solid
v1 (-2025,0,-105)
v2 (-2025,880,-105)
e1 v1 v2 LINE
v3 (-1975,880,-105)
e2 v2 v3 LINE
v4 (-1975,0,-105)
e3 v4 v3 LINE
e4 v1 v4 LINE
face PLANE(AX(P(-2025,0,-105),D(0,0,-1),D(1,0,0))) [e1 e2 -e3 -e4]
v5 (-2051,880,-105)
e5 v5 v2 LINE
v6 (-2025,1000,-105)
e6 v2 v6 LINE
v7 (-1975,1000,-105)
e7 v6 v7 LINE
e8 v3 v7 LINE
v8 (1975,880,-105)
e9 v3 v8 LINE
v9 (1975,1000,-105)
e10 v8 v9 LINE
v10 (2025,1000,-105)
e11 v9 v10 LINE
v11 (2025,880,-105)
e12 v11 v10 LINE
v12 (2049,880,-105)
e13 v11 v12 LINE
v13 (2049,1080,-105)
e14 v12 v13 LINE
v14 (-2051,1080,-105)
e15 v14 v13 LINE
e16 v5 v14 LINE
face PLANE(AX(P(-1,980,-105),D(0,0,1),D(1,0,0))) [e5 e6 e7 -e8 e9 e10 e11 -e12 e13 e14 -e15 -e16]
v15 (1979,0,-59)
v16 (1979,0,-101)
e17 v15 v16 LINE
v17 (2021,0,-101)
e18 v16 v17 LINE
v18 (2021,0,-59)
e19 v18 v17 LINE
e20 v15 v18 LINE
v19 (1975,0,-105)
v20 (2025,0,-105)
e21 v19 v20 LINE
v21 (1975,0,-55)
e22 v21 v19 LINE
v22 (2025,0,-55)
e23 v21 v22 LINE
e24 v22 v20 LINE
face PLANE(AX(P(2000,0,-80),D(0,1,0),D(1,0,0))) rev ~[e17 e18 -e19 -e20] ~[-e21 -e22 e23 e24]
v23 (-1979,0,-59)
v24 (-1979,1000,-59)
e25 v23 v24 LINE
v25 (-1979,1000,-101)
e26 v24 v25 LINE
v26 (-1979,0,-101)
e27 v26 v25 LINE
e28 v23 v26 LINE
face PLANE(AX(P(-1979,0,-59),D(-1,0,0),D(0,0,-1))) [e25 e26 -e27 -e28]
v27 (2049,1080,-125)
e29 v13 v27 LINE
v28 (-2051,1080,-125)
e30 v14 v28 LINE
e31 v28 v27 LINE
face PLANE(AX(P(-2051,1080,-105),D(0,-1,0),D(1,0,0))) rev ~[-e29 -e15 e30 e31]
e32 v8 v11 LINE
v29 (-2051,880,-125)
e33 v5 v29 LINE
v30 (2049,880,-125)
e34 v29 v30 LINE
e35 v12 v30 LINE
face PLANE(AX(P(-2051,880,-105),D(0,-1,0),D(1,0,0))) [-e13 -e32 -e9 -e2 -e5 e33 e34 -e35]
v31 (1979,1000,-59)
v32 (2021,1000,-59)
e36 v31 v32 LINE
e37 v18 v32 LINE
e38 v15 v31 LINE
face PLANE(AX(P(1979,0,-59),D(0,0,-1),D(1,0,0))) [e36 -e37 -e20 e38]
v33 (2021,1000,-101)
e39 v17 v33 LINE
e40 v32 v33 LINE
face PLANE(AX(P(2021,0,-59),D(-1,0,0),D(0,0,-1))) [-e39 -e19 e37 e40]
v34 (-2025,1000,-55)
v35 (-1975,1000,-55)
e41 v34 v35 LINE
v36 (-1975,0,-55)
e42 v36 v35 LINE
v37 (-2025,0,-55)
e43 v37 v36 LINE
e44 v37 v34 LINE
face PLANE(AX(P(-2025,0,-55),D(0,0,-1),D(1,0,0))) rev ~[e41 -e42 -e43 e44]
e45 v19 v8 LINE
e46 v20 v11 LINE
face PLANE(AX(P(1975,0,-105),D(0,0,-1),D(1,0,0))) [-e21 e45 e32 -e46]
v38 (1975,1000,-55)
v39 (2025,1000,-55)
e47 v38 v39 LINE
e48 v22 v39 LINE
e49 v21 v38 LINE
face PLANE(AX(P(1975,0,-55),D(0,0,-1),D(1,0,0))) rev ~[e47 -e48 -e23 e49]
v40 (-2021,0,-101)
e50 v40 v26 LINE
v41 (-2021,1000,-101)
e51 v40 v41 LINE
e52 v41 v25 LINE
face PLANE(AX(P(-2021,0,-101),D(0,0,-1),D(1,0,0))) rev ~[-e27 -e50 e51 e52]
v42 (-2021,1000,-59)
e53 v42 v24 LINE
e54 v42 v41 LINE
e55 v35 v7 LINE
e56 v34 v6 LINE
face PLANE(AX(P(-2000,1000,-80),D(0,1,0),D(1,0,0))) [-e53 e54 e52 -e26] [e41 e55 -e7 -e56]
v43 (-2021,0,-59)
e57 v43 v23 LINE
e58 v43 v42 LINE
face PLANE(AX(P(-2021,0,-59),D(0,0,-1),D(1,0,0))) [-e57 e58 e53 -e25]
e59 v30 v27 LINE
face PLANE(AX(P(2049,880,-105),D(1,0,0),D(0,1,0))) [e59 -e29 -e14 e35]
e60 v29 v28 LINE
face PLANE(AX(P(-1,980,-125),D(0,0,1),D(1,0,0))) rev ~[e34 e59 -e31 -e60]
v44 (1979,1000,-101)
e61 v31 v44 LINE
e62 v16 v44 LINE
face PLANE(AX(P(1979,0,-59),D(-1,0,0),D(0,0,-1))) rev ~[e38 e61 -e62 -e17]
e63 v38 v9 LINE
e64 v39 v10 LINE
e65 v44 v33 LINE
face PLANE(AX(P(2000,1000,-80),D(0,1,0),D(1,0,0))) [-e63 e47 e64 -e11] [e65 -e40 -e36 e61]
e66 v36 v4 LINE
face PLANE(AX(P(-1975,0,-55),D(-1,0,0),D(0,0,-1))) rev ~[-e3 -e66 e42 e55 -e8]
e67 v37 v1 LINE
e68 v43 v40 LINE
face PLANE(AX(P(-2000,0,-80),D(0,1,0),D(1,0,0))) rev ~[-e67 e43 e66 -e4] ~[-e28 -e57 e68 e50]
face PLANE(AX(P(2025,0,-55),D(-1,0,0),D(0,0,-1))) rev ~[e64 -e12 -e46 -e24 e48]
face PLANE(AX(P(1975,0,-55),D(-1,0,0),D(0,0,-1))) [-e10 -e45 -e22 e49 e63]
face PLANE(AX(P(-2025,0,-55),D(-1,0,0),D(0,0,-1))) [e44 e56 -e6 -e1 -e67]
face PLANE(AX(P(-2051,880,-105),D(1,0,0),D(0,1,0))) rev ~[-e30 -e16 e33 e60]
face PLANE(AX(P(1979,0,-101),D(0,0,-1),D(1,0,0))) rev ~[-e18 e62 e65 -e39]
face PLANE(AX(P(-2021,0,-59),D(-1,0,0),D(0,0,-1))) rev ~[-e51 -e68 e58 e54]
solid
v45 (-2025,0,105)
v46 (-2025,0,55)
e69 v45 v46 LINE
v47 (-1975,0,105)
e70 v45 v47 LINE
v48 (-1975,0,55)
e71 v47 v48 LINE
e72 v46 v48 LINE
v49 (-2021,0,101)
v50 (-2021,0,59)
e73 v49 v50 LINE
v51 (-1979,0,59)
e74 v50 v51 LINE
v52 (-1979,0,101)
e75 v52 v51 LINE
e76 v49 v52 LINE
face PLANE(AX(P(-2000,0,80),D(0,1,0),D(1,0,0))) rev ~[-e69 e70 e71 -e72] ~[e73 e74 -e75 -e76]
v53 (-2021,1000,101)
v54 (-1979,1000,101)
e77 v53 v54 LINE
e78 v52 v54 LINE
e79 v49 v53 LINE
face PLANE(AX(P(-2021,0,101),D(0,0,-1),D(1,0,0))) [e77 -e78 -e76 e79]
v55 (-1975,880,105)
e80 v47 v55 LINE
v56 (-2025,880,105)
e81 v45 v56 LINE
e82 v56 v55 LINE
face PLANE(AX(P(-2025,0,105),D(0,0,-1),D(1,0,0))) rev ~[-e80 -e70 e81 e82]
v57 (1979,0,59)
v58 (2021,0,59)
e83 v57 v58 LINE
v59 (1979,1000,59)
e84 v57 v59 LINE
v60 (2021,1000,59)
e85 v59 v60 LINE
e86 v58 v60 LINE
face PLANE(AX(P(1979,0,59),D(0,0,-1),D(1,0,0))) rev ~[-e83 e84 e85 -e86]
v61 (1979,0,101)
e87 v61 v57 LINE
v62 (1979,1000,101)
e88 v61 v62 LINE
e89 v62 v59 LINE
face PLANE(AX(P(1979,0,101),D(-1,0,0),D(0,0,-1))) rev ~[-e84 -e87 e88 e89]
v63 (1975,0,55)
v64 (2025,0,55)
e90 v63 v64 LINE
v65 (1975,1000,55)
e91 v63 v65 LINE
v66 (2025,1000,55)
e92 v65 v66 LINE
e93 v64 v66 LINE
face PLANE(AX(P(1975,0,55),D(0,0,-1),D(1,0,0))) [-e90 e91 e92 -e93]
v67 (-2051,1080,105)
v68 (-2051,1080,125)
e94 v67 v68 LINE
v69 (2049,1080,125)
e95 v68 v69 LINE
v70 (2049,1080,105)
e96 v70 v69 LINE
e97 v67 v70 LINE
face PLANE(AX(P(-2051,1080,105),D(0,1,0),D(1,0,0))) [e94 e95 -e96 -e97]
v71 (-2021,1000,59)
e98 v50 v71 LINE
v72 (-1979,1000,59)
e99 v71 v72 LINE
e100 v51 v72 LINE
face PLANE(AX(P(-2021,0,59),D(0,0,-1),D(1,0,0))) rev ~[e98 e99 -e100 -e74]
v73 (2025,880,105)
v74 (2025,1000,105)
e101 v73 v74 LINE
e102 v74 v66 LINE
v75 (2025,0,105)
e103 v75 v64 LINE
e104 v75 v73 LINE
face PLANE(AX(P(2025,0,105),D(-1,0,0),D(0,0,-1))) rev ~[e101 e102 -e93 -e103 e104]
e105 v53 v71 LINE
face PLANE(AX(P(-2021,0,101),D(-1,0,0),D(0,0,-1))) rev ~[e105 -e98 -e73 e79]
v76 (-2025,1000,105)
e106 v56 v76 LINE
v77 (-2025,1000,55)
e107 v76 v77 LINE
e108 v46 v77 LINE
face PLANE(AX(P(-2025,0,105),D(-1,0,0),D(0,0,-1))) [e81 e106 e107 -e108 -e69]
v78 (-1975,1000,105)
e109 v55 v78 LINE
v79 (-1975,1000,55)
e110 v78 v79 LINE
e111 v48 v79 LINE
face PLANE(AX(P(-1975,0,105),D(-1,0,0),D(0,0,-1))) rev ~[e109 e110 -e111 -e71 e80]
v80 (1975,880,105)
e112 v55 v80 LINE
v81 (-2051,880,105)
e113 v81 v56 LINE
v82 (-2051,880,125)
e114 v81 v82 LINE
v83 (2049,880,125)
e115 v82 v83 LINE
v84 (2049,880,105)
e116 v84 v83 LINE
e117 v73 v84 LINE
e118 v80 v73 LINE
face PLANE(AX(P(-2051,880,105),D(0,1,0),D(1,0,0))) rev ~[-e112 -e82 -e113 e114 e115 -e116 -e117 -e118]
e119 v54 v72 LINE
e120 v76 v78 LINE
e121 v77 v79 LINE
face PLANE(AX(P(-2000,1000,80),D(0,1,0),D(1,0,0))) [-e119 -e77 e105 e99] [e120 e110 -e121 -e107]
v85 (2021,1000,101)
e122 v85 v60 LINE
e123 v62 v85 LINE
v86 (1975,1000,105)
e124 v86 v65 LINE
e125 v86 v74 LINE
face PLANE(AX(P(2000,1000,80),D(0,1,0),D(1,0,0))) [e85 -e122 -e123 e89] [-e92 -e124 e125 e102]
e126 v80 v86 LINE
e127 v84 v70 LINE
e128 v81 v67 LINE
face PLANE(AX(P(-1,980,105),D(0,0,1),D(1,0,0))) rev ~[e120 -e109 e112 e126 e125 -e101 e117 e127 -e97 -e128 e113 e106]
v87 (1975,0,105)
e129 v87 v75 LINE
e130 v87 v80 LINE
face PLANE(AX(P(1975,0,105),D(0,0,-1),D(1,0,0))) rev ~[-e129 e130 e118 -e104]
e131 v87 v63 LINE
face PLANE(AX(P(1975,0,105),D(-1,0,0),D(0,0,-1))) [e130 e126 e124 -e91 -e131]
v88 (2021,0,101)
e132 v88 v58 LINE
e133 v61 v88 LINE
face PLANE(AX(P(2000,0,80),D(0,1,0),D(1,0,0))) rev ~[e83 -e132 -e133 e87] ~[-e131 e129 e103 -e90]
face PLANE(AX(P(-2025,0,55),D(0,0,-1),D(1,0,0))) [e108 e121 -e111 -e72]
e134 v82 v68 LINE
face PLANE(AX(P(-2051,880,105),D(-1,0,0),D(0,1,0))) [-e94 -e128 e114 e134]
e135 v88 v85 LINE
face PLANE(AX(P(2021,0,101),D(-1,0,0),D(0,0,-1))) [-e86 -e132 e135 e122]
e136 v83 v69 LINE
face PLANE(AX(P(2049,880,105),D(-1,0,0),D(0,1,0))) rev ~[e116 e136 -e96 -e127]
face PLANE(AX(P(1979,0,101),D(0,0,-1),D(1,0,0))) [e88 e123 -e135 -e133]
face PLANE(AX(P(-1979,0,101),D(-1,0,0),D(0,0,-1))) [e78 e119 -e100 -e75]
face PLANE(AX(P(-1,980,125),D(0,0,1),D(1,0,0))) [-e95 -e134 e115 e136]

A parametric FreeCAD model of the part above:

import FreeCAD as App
import Part
import Sketcher

V = App.Vector
Q = App.Units.Quantity

doc = App.newDocument("Part")
params = doc.addObject("Spreadsheet::Sheet", "Params")
for row, (alias, value) in enumerate([
    ("sketch1_width", "50 mm"),
    ("sketch1_width2", "42 mm"),
    ("pad1_length", "1000 mm"),
    ("sketch2_width", "50 mm"),
    ("sketch2_width2", "42 mm"),
    ("pad2_length", "1000 mm"),
    ("sketch3_width", "50 mm"),
    ("sketch3_width2", "42 mm"),
    ("pad3_length", "1000 mm"),
    ("sketch4_width", "50 mm"),
    ("sketch4_width2", "42 mm"),
    ("pad4_length", "1000 mm"),
    ("sketch5_width", "4100 mm"),
    ("sketch5_height", "200 mm"),
    ("pad5_length", "20 mm"),
    ("sketch6_width", "4100 mm"),
    ("sketch6_height", "200 mm"),
    ("pad6_length", "20 mm"),
], start=1):
    params.set(f"A{row}", alias)
    params.set(f"B{row}", "=" + value)
    params.setAlias(f"B{row}", alias)

body = doc.addObject("PartDesign::Body", "Body")

# Sketch on XZ plane
sketch1 = body.newObject("Sketcher::SketchObject", "Sketch")
sketch1.AttachmentSupport = (doc.getObject("XZ_Plane"), [""])
sketch1.MapMode = "FlatFace"
sketch1.addGeometry([
    Part.LineSegment(V(-2025, -105, 0), V(-2025, -55, 0)),  # 0
    Part.LineSegment(V(-2025, -55, 0), V(-1975, -55, 0)),  # 1
    Part.LineSegment(V(-1975, -55, 0), V(-1975, -105, 0)),  # 2
    Part.LineSegment(V(-1975, -105, 0), V(-2025, -105, 0)),  # 3
    Part.LineSegment(V(-1979, -59, 0), V(-2021, -59, 0)),  # 4
    Part.LineSegment(V(-2021, -59, 0), V(-2021, -101, 0)),  # 5
    Part.LineSegment(V(-2021, -101, 0), V(-1979, -101, 0)),  # 6
    Part.LineSegment(V(-1979, -101, 0), V(-1979, -59, 0)),  # 7
], False)
sketch1.addConstraint([
    Sketcher.Constraint("Coincident", 0, 2, 1, 1),
    Sketcher.Constraint("Coincident", 1, 2, 2, 1),
    Sketcher.Constraint("Coincident", 2, 2, 3, 1),
    Sketcher.Constraint("Coincident", 3, 2, 0, 1),
    Sketcher.Constraint("Coincident", 4, 2, 5, 1),
    Sketcher.Constraint("Coincident", 5, 2, 6, 1),
    Sketcher.Constraint("Coincident", 6, 2, 7, 1),
    Sketcher.Constraint("Coincident", 7, 2, 4, 1),
    Sketcher.Constraint("Vertical", 0),
    Sketcher.Constraint("Horizontal", 1),
    Sketcher.Constraint("Vertical", 2),
    Sketcher.Constraint("Horizontal", 3),
    Sketcher.Constraint("Horizontal", 4),
    Sketcher.Constraint("Vertical", 5),
    Sketcher.Constraint("Horizontal", 6),
    Sketcher.Constraint("Vertical", 7),
    Sketcher.Constraint("Equal", 3, 0),
    Sketcher.Constraint("Equal", 6, 5),
    Sketcher.Constraint("DistanceX", 1, 1, 1, 2, Q("50 mm")),
    Sketcher.Constraint("DistanceX", 4, 2, 4, 1, Q("42 mm")),
    Sketcher.Constraint("DistanceX", 0, 2, -1, 1, Q("2025 mm")),
    Sketcher.Constraint("DistanceY", 0, 2, -1, 1, Q("55 mm")),
    Sketcher.Constraint("DistanceX", 4, 2, -1, 1, Q("2021 mm")),
    Sketcher.Constraint("DistanceY", 4, 2, -1, 1, Q("59 mm")),
])
sketch1.setExpression("Constraints[18]", "Params.sketch1_width")
sketch1.setExpression("Constraints[19]", "Params.sketch1_width2")
pad1 = body.newObject("PartDesign::Pad", "Pad")
pad1.Profile = sketch1
pad1.setExpression("Length", "Params.pad1_length")
pad1.Reversed = True
body2 = doc.addObject("PartDesign::Body", "Body001")

# Sketch on XZ plane
sketch2 = body2.newObject("Sketcher::SketchObject", "Sketch001")
sketch2.AttachmentSupport = (doc.getObject("XZ_Plane001"), [""])
sketch2.MapMode = "FlatFace"
sketch2.addGeometry([
    Part.LineSegment(V(-2025, 55, 0), V(-2025, 105, 0)),  # 0
    Part.LineSegment(V(-2025, 105, 0), V(-1975, 105, 0)),  # 1
    Part.LineSegment(V(-1975, 105, 0), V(-1975, 55, 0)),  # 2
    Part.LineSegment(V(-1975, 55, 0), V(-2025, 55, 0)),  # 3
    Part.LineSegment(V(-1979, 101, 0), V(-2021, 101, 0)),  # 4
    Part.LineSegment(V(-2021, 101, 0), V(-2021, 59, 0)),  # 5
    Part.LineSegment(V(-2021, 59, 0), V(-1979, 59, 0)),  # 6
    Part.LineSegment(V(-1979, 59, 0), V(-1979, 101, 0)),  # 7
], False)
sketch2.addConstraint([
    Sketcher.Constraint("Coincident", 0, 2, 1, 1),
    Sketcher.Constraint("Coincident", 1, 2, 2, 1),
    Sketcher.Constraint("Coincident", 2, 2, 3, 1),
    Sketcher.Constraint("Coincident", 3, 2, 0, 1),
    Sketcher.Constraint("Coincident", 4, 2, 5, 1),
    Sketcher.Constraint("Coincident", 5, 2, 6, 1),
    Sketcher.Constraint("Coincident", 6, 2, 7, 1),
    Sketcher.Constraint("Coincident", 7, 2, 4, 1),
    Sketcher.Constraint("Vertical", 0),
    Sketcher.Constraint("Horizontal", 1),
    Sketcher.Constraint("Vertical", 2),
    Sketcher.Constraint("Horizontal", 3),
    Sketcher.Constraint("Horizontal", 4),
    Sketcher.Constraint("Vertical", 5),
    Sketcher.Constraint("Horizontal", 6),
    Sketcher.Constraint("Vertical", 7),
    Sketcher.Constraint("Equal", 3, 0),
    Sketcher.Constraint("Equal", 6, 5),
    Sketcher.Constraint("DistanceX", 1, 1, 1, 2, Q("50 mm")),
    Sketcher.Constraint("DistanceX", 4, 2, 4, 1, Q("42 mm")),
    Sketcher.Constraint("DistanceX", 0, 2, -1, 1, Q("2025 mm")),
    Sketcher.Constraint("DistanceY", -1, 1, 0, 2, Q("105 mm")),
    Sketcher.Constraint("DistanceX", 4, 2, -1, 1, Q("2021 mm")),
    Sketcher.Constraint("DistanceY", -1, 1, 4, 2, Q("101 mm")),
])
sketch2.setExpression("Constraints[18]", "Params.sketch2_width")
sketch2.setExpression("Constraints[19]", "Params.sketch2_width2")
pad2 = body2.newObject("PartDesign::Pad", "Pad001")
pad2.Profile = sketch2
pad2.setExpression("Length", "Params.pad2_length")
pad2.Reversed = True
body3 = doc.addObject("PartDesign::Body", "Body002")

# Sketch on XZ plane
sketch3 = body3.newObject("Sketcher::SketchObject", "Sketch002")
sketch3.AttachmentSupport = (doc.getObject("XZ_Plane002"), [""])
sketch3.MapMode = "FlatFace"
sketch3.addGeometry([
    Part.LineSegment(V(1975, 55, 0), V(1975, 105, 0)),  # 0
    Part.LineSegment(V(1975, 105, 0), V(2025, 105, 0)),  # 1
    Part.LineSegment(V(2025, 105, 0), V(2025, 55, 0)),  # 2
    Part.LineSegment(V(2025, 55, 0), V(1975, 55, 0)),  # 3
    Part.LineSegment(V(2021, 101, 0), V(1979, 101, 0)),  # 4
    Part.LineSegment(V(1979, 101, 0), V(1979, 59, 0)),  # 5
    Part.LineSegment(V(1979, 59, 0), V(2021, 59, 0)),  # 6
    Part.LineSegment(V(2021, 59, 0), V(2021, 101, 0)),  # 7
], False)
sketch3.addConstraint([
    Sketcher.Constraint("Coincident", 0, 2, 1, 1),
    Sketcher.Constraint("Coincident", 1, 2, 2, 1),
    Sketcher.Constraint("Coincident", 2, 2, 3, 1),
    Sketcher.Constraint("Coincident", 3, 2, 0, 1),
    Sketcher.Constraint("Coincident", 4, 2, 5, 1),
    Sketcher.Constraint("Coincident", 5, 2, 6, 1),
    Sketcher.Constraint("Coincident", 6, 2, 7, 1),
    Sketcher.Constraint("Coincident", 7, 2, 4, 1),
    Sketcher.Constraint("Vertical", 0),
    Sketcher.Constraint("Horizontal", 1),
    Sketcher.Constraint("Vertical", 2),
    Sketcher.Constraint("Horizontal", 3),
    Sketcher.Constraint("Horizontal", 4),
    Sketcher.Constraint("Vertical", 5),
    Sketcher.Constraint("Horizontal", 6),
    Sketcher.Constraint("Vertical", 7),
    Sketcher.Constraint("Equal", 3, 0),
    Sketcher.Constraint("Equal", 6, 5),
    Sketcher.Constraint("DistanceX", 1, 1, 1, 2, Q("50 mm")),
    Sketcher.Constraint("DistanceX", 4, 2, 4, 1, Q("42 mm")),
    Sketcher.Constraint("DistanceX", -1, 1, 0, 2, Q("1975 mm")),
    Sketcher.Constraint("DistanceY", -1, 1, 0, 2, Q("105 mm")),
    Sketcher.Constraint("DistanceX", -1, 1, 4, 2, Q("1979 mm")),
    Sketcher.Constraint("DistanceY", -1, 1, 4, 2, Q("101 mm")),
])
sketch3.setExpression("Constraints[18]", "Params.sketch3_width")
sketch3.setExpression("Constraints[19]", "Params.sketch3_width2")
pad3 = body3.newObject("PartDesign::Pad", "Pad002")
pad3.Profile = sketch3
pad3.setExpression("Length", "Params.pad3_length")
pad3.Reversed = True
body4 = doc.addObject("PartDesign::Body", "Body003")

# Sketch on XZ plane
sketch4 = body4.newObject("Sketcher::SketchObject", "Sketch003")
sketch4.AttachmentSupport = (doc.getObject("XZ_Plane003"), [""])
sketch4.MapMode = "FlatFace"
sketch4.addGeometry([
    Part.LineSegment(V(1975, -105, 0), V(1975, -55, 0)),  # 0
    Part.LineSegment(V(1975, -55, 0), V(2025, -55, 0)),  # 1
    Part.LineSegment(V(2025, -55, 0), V(2025, -105, 0)),  # 2
    Part.LineSegment(V(2025, -105, 0), V(1975, -105, 0)),  # 3
    Part.LineSegment(V(2021, -59, 0), V(1979, -59, 0)),  # 4
    Part.LineSegment(V(1979, -59, 0), V(1979, -101, 0)),  # 5
    Part.LineSegment(V(1979, -101, 0), V(2021, -101, 0)),  # 6
    Part.LineSegment(V(2021, -101, 0), V(2021, -59, 0)),  # 7
], False)
sketch4.addConstraint([
    Sketcher.Constraint("Coincident", 0, 2, 1, 1),
    Sketcher.Constraint("Coincident", 1, 2, 2, 1),
    Sketcher.Constraint("Coincident", 2, 2, 3, 1),
    Sketcher.Constraint("Coincident", 3, 2, 0, 1),
    Sketcher.Constraint("Coincident", 4, 2, 5, 1),
    Sketcher.Constraint("Coincident", 5, 2, 6, 1),
    Sketcher.Constraint("Coincident", 6, 2, 7, 1),
    Sketcher.Constraint("Coincident", 7, 2, 4, 1),
    Sketcher.Constraint("Vertical", 0),
    Sketcher.Constraint("Horizontal", 1),
    Sketcher.Constraint("Vertical", 2),
    Sketcher.Constraint("Horizontal", 3),
    Sketcher.Constraint("Horizontal", 4),
    Sketcher.Constraint("Vertical", 5),
    Sketcher.Constraint("Horizontal", 6),
    Sketcher.Constraint("Vertical", 7),
    Sketcher.Constraint("Equal", 3, 0),
    Sketcher.Constraint("Equal", 6, 5),
    Sketcher.Constraint("DistanceX", 1, 1, 1, 2, Q("50 mm")),
    Sketcher.Constraint("DistanceX", 4, 2, 4, 1, Q("42 mm")),
    Sketcher.Constraint("DistanceX", -1, 1, 0, 2, Q("1975 mm")),
    Sketcher.Constraint("DistanceY", 0, 2, -1, 1, Q("55 mm")),
    Sketcher.Constraint("DistanceX", -1, 1, 4, 2, Q("1979 mm")),
    Sketcher.Constraint("DistanceY", 4, 2, -1, 1, Q("59 mm")),
])
sketch4.setExpression("Constraints[18]", "Params.sketch4_width")
sketch4.setExpression("Constraints[19]", "Params.sketch4_width2")
pad4 = body4.newObject("PartDesign::Pad", "Pad003")
pad4.Profile = sketch4
pad4.setExpression("Length", "Params.pad4_length")
pad4.Reversed = True
body2.AllowCompound = True
doc.recompute()

boolean = body2.newObject("PartDesign::Boolean", "Boolean")
boolean.Type = "Fuse"
boolean.addObjects([body3])

# Sketch on XY plane
sketch5 = body2.newObject("Sketcher::SketchObject", "Sketch004")
sketch5.AttachmentSupport = (doc.getObject("XY_Plane001"), [""])
sketch5.MapMode = "FlatFace"
sketch5.AttachmentOffset = App.Placement(V(0, 0, 105), App.Rotation())
sketch5.addGeometry([
    Part.LineSegment(V(-2051, 1080, 0), V(-2051, 880, 0)),
    Part.LineSegment(V(-2051, 880, 0), V(2049, 880, 0)),
    Part.LineSegment(V(2049, 880, 0), V(2049, 1080, 0)),
    Part.LineSegment(V(2049, 1080, 0), V(-2051, 1080, 0)),
], False)
sketch5.addConstraint([
    Sketcher.Constraint("Coincident", 0, 2, 1, 1),
    Sketcher.Constraint("Coincident", 1, 2, 2, 1),
    Sketcher.Constraint("Coincident", 2, 2, 3, 1),
    Sketcher.Constraint("Coincident", 3, 2, 0, 1),
    Sketcher.Constraint("Vertical", 0),
    Sketcher.Constraint("Horizontal", 1),
    Sketcher.Constraint("Vertical", 2),
    Sketcher.Constraint("Horizontal", 3),
    Sketcher.Constraint("DistanceX", 1, 1, 1, 2, Q("4100 mm")),
    Sketcher.Constraint("DistanceY", 0, 2, 0, 1, Q("200 mm")),
    Sketcher.Constraint("DistanceX", 0, 2, -1, 1, Q("2051 mm")),
    Sketcher.Constraint("DistanceY", -1, 1, 0, 2, Q("880 mm")),
])
sketch5.setExpression("Constraints[8]", "Params.sketch5_width")
sketch5.setExpression("Constraints[9]", "Params.sketch5_height")
pad5 = body2.newObject("PartDesign::Pad", "Pad004")
pad5.Profile = sketch5
pad5.setExpression("Length", "Params.pad5_length")
body.AllowCompound = True
doc.recompute()

boolean2 = body.newObject("PartDesign::Boolean", "Boolean001")
boolean2.Type = "Fuse"
boolean2.addObjects([body4])

# Sketch on XY plane
sketch6 = body.newObject("Sketcher::SketchObject", "Sketch005")
sketch6.AttachmentSupport = (doc.getObject("XY_Plane"), [""])
sketch6.MapMode = "FlatFace"
sketch6.AttachmentOffset = App.Placement(V(0, 0, -105), App.Rotation())
sketch6.addGeometry([
    Part.LineSegment(V(-2051, 1080, 0), V(-2051, 880, 0)),
    Part.LineSegment(V(-2051, 880, 0), V(2049, 880, 0)),
    Part.LineSegment(V(2049, 880, 0), V(2049, 1080, 0)),
    Part.LineSegment(V(2049, 1080, 0), V(-2051, 1080, 0)),
], False)
sketch6.addConstraint([
    Sketcher.Constraint("Coincident", 0, 2, 1, 1),
    Sketcher.Constraint("Coincident", 1, 2, 2, 1),
    Sketcher.Constraint("Coincident", 2, 2, 3, 1),
    Sketcher.Constraint("Coincident", 3, 2, 0, 1),
    Sketcher.Constraint("Vertical", 0),
    Sketcher.Constraint("Horizontal", 1),
    Sketcher.Constraint("Vertical", 2),
    Sketcher.Constraint("Horizontal", 3),
    Sketcher.Constraint("DistanceX", 1, 1, 1, 2, Q("4100 mm")),
    Sketcher.Constraint("DistanceY", 0, 2, 0, 1, Q("200 mm")),
    Sketcher.Constraint("DistanceX", 0, 2, -1, 1, Q("2051 mm")),
    Sketcher.Constraint("DistanceY", -1, 1, 0, 2, Q("880 mm")),
])
sketch6.setExpression("Constraints[8]", "Params.sketch6_width")
sketch6.setExpression("Constraints[9]", "Params.sketch6_height")
pad6 = body.newObject("PartDesign::Pad", "Pad005")
pad6.Profile = sketch6
pad6.setExpression("Length", "Params.pad6_length")
pad6.Reversed = True

doc.recompute()
